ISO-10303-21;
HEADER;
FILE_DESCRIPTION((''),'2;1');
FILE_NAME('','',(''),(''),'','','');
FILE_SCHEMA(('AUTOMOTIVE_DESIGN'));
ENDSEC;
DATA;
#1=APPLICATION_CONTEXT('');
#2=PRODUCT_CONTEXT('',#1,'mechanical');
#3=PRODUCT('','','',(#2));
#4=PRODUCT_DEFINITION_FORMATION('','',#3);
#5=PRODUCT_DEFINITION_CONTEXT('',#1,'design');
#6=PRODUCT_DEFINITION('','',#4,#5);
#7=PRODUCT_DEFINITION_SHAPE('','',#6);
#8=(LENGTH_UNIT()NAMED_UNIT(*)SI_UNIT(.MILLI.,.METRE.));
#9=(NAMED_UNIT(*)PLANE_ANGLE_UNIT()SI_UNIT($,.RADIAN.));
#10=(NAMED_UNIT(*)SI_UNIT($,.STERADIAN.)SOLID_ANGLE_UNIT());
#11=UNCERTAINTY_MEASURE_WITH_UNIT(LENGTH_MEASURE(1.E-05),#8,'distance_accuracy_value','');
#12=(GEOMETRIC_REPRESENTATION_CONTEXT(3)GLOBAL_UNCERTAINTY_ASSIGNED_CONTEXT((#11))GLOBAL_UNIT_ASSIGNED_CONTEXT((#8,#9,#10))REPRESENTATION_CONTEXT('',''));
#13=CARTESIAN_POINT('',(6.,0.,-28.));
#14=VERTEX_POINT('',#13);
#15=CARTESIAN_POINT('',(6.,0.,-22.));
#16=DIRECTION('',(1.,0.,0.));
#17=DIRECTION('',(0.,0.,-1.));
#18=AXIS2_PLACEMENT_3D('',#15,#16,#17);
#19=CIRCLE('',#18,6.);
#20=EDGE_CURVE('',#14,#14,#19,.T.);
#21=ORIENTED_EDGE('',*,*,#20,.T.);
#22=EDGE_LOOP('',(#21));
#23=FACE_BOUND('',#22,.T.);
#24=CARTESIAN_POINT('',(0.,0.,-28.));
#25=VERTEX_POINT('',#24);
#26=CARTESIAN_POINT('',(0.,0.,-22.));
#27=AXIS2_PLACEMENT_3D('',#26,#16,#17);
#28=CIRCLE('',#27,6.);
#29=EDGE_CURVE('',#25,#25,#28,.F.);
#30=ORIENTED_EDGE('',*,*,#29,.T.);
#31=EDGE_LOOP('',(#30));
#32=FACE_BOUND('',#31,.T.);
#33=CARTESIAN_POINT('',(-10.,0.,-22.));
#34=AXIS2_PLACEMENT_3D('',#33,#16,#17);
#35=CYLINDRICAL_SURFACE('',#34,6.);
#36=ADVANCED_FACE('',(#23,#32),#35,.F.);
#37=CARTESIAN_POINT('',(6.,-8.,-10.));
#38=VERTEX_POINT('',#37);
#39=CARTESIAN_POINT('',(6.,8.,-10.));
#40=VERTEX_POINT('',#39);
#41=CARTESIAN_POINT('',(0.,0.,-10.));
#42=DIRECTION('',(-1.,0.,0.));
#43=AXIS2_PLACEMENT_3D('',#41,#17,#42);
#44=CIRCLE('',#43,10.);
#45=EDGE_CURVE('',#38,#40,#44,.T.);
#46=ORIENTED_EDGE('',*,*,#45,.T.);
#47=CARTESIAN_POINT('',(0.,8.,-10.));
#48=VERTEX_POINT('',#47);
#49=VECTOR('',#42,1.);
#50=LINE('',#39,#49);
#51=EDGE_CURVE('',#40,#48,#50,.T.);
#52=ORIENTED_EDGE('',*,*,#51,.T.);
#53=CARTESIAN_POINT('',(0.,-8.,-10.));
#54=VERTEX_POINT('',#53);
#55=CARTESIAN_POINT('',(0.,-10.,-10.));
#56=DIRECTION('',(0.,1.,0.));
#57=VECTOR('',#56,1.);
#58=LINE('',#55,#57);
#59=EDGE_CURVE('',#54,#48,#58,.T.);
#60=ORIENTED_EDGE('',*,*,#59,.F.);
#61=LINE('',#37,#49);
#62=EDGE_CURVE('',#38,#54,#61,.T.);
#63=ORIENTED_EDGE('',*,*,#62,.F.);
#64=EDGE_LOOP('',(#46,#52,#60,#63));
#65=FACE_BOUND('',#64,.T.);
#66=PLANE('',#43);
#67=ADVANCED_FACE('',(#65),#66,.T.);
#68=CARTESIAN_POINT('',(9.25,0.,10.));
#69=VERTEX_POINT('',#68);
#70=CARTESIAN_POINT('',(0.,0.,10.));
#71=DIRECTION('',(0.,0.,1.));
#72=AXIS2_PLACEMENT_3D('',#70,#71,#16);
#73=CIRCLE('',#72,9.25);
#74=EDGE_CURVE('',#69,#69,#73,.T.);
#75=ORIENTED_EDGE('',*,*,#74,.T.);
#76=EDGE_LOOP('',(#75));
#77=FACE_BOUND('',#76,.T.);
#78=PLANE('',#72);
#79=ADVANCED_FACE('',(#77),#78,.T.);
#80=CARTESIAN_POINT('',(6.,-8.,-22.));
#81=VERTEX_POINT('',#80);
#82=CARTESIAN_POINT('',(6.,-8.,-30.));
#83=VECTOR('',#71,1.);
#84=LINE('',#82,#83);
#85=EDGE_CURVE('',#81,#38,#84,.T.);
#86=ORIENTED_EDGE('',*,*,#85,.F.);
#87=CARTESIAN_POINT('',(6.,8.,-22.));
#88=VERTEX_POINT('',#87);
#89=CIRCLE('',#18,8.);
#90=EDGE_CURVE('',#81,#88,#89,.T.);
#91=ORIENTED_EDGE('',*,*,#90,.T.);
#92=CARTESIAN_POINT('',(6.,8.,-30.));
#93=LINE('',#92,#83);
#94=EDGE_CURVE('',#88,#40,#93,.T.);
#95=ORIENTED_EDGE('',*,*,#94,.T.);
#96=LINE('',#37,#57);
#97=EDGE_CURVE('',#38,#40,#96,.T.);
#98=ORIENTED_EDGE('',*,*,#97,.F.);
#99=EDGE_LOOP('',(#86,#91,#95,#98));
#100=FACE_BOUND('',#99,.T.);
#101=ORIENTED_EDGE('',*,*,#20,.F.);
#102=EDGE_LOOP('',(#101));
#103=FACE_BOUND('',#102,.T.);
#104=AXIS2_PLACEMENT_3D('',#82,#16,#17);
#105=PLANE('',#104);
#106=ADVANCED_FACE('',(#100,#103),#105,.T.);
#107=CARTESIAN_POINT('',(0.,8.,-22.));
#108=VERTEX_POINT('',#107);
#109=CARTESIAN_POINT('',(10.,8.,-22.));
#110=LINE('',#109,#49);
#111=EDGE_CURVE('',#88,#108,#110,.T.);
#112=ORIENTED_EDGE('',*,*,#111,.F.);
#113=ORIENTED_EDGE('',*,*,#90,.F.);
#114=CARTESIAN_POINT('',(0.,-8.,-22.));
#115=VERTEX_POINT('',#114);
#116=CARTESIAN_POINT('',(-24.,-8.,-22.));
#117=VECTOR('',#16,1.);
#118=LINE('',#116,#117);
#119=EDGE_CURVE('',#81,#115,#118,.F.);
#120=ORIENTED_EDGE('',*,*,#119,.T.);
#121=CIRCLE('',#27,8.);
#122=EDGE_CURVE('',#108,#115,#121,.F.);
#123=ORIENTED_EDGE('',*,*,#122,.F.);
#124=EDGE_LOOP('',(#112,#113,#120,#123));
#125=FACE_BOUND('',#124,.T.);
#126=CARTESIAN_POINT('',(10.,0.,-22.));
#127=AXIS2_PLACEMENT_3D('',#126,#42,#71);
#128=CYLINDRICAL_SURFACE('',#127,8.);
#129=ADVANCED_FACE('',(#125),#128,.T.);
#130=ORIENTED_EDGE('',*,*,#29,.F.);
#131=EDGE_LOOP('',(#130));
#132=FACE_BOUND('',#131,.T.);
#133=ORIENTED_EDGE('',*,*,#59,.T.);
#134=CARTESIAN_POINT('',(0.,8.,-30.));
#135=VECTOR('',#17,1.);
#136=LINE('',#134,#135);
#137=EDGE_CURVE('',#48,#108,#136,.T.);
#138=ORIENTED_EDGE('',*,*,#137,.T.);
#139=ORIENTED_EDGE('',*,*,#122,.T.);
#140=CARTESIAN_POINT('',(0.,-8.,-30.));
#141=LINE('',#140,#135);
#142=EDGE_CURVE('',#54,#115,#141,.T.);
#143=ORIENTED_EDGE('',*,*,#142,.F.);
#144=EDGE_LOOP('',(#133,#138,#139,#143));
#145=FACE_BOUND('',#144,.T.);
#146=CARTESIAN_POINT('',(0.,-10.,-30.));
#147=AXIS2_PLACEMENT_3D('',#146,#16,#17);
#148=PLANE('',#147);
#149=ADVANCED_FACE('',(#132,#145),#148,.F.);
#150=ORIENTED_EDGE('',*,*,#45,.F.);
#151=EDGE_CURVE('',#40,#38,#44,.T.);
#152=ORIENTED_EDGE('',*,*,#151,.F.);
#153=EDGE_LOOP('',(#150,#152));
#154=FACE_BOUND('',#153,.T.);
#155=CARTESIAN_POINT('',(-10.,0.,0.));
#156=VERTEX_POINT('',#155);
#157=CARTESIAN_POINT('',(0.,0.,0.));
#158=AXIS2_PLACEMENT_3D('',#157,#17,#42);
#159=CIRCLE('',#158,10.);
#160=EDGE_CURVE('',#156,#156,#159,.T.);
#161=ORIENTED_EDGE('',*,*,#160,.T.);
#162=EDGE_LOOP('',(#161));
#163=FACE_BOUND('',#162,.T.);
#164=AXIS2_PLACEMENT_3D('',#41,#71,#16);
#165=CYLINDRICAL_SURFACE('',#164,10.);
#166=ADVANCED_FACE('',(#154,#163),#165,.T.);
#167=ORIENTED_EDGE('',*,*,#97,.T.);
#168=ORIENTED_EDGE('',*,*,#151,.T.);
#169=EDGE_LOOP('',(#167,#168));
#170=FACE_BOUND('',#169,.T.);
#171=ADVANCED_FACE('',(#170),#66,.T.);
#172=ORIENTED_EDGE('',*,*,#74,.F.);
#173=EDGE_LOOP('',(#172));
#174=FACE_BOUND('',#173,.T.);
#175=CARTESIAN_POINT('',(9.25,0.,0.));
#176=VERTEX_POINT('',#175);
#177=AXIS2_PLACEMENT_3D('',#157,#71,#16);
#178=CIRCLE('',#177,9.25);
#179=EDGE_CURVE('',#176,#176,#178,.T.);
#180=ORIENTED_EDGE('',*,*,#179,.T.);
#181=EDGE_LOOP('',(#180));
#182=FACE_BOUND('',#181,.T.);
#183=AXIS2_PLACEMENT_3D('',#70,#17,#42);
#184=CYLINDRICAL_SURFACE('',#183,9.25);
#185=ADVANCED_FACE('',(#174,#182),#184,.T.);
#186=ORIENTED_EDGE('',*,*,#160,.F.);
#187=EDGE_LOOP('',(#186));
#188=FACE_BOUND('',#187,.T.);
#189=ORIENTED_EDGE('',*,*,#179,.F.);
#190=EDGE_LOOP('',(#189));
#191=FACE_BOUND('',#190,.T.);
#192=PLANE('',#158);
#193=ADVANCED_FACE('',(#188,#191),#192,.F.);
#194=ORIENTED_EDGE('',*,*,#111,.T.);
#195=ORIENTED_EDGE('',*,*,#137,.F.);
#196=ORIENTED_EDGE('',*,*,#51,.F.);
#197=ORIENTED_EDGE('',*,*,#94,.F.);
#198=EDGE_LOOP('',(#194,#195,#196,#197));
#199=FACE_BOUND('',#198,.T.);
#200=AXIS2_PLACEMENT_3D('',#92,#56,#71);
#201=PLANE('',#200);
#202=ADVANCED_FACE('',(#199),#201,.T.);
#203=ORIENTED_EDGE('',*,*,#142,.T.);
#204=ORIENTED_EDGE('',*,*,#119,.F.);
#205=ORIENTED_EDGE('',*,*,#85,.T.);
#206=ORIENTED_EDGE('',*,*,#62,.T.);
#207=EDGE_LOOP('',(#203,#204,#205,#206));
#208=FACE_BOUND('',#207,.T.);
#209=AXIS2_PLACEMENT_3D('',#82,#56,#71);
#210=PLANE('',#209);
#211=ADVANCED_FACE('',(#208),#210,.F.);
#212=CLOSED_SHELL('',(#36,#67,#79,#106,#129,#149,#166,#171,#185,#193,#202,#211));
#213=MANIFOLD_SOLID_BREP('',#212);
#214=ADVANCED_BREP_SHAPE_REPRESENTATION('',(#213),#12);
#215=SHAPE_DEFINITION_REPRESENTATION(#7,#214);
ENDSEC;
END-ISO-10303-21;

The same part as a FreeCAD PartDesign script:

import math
import FreeCAD as App
import Part
import Sketcher
from FreeCAD import Vector


def add_polygon(sketch, points):
    """Adds a closed chain of lines whose ends are joined by coincident constraints."""
    first, n = sketch.GeometryCount, len(points)
    for a, b in zip(points, points[1:] + points[:1]):
        sketch.addGeometry(Part.LineSegment(App.Vector(*a, 0), App.Vector(*b, 0)), False)
    for i in range(n):
        sketch.addConstraint(Sketcher.Constraint("Coincident", first + i, 2, first + (i + 1) % n, 1))

doc = App.newDocument("Part")
body = doc.addObject("PartDesign::Body", "Body")

# Sketch on XY plane
sketch1 = doc.addObject("Sketcher::SketchObject", "Sketch")
body.addObject(sketch1)
sketch1.AttachmentSupport = (doc.XY_Plane, [""])
sketch1.MapMode = "FlatFace"
sketch1.addGeometry(Part.Circle(Vector(0, 0, 0), Vector(0, 0, 1), 9), False)
sketch1.addConstraint([
    Sketcher.Constraint("Coincident", 0, 3, -1, 1),
    Sketcher.Constraint("Diameter", 0, 18.5),
])
pad1 = doc.addObject("PartDesign::Pad", "Pad")
body.addObject(pad1)
pad1.Profile = sketch1
pad1.Length = 10

# Sketch on XY plane
sketch2 = doc.addObject("Sketcher::SketchObject", "Sketch001")
body.addObject(sketch2)
sketch2.AttachmentSupport = (doc.XY_Plane, [""])
sketch2.MapMode = "FlatFace"
sketch2.addGeometry(Part.Circle(Vector(0, 0, 0), Vector(0, 0, 1), 10), False)
sketch2.addConstraint([
    Sketcher.Constraint("Coincident", 0, 3, -1, 1),
    Sketcher.Constraint("Diameter", 0, 20.0),
])
pad2 = doc.addObject("PartDesign::Pad", "Pad001")
body.addObject(pad2)
pad2.Profile = sketch2
pad2.Length = 10
pad2.Reversed = True

# Sketch on XY plane
sketch3 = doc.addObject("Sketcher::SketchObject", "Sketch002")
body.addObject(sketch3)
sketch3.AttachmentSupport = (doc.XY_Plane, [""])
sketch3.MapMode = "FlatFace"
sketch3.AttachmentOffset = App.Placement(Vector(0, 0, -10), App.Rotation())
add_polygon(sketch3, [(6, 8), (6, -8), (-6, -8), (-6, 8)])  # lines 0-3
sketch3.addConstraint([
    Sketcher.Constraint("Vertical", 0),
    Sketcher.Constraint("Horizontal", 1),
    Sketcher.Constraint("Vertical", 2),
    Sketcher.Constraint("Horizontal", 3),
    Sketcher.Constraint("Symmetric", 0, 2, 2, 2, -1, 1),
    Sketcher.Constraint("DistanceX", 1, 2, 1, 1, 12.0),
    Sketcher.Constraint("DistanceY", 0, 2, 0, 1, 16.0),
])
pad3 = doc.addObject("PartDesign::Pad", "Pad002")
body.addObject(pad3)
pad3.Profile = sketch3
pad3.Length = 20
pad3.Reversed = True

# Sketch on YZ plane
sketch4 = doc.addObject("Sketcher::SketchObject", "Sketch003")
body.addObject(sketch4)
sketch4.AttachmentSupport = (doc.YZ_Plane, [""])
sketch4.MapMode = "FlatFace"
sketch4.AttachmentOffset = App.Placement(Vector(0, 0, 6), App.Rotation())
sketch4.addGeometry([
    Part.LineSegment(Vector(8, -30, 0), Vector(8, -22, 0)),  # 0
    Part.ArcOfCircle(Part.Circle(Vector(0, -22, 0), Vector(0, 0, 1), 8), math.radians(-90), math.radians(0)),  # 1
    Part.LineSegment(Vector(0, -30, 0), Vector(8, -30, 0)),  # 2
    Part.LineSegment(Vector(-8, -30, 0), Vector(0, -30, 0)),  # 3
    Part.ArcOfCircle(Part.Circle(Vector(0, -22, 0), Vector(0, 0, 1), 8), math.radians(-180), math.radians(-90)),  # 4
    Part.LineSegment(Vector(-8, -22, 0), Vector(-8, -30, 0)),  # 5
], False)
sketch4.addConstraint([
    Sketcher.Constraint("Tangent", 0, 2, 1, 2),
    Sketcher.Constraint("Tangent", 1, 1, 2, 1),
    Sketcher.Constraint("Coincident", 2, 2, 0, 1),
    Sketcher.Constraint("Tangent", 3, 2, 4, 2),
    Sketcher.Constraint("Tangent", 4, 1, 5, 1),
    Sketcher.Constraint("Coincident", 5, 2, 3, 1),
    Sketcher.Constraint("Vertical", 0),
    Sketcher.Constraint("Horizontal", 2),
    Sketcher.Constraint("Horizontal", 3),
    Sketcher.Constraint("Vertical", 5),
    Sketcher.Constraint("Coincident", 4, 3, 1, 3),
    Sketcher.Constraint("Equal", 1, 4),
    Sketcher.Constraint("PointOnObject", 1, 3, -2),
    Sketcher.Constraint("Radius", 1, 8.0),
    Sketcher.Constraint("DistanceY", 1, 3, -1, 1, 22.0),
])
pocket1 = doc.addObject("PartDesign::Pocket", "Pocket")
body.addObject(pocket1)
pocket1.Profile = sketch4
pocket1.Type = "ThroughAll"
pocket1.Midplane = True

# Sketch on YZ plane
sketch5 = doc.addObject("Sketcher::SketchObject", "Sketch004")
body.addObject(sketch5)
sketch5.AttachmentSupport = (doc.YZ_Plane, [""])
sketch5.MapMode = "FlatFace"
sketch5.AttachmentOffset = App.Placement(Vector(0, 0, 6), App.Rotation())
sketch5.addGeometry(Part.Circle(Vector(0, -22, 0), Vector(0, 0, 1), 6), False)
sketch5.addConstraint([
    Sketcher.Constraint("PointOnObject", 0, 3, -2),
    Sketcher.Constraint("Diameter", 0, 12.0),
    Sketcher.Constraint("DistanceY", 0, 3, -1, 1, 22.0),
])
pocket2 = doc.addObject("PartDesign::Pocket", "Pocket001")
body.addObject(pocket2)
pocket2.Profile = sketch5
pocket2.Type = "ThroughAll"

# Sketch on XZ plane
sketch6 = doc.addObject("Sketcher::SketchObject", "Sketch005")
body.addObject(sketch6)
sketch6.AttachmentSupport = (doc.XZ_Plane, [""])
sketch6.MapMode = "FlatFace"
sketch6.AttachmentOffset = App.Placement(Vector(0, 0, -8), App.Rotation())
add_polygon(sketch6, [(-6, -30), (-6, -10), (0, -10), (0, -30)])  # lines 0-3
sketch6.addConstraint([
    Sketcher.Constraint("Vertical", 0),
    Sketcher.Constraint("Horizontal", 1),
    Sketcher.Constraint("Vertical", 2),
    Sketcher.Constraint("Horizontal", 3),
    Sketcher.Constraint("PointOnObject", 1, 2, -2),
    Sketcher.Constraint("DistanceX", 1, 1, 1, 2, 6.0),
    Sketcher.Constraint("DistanceY", 0, 1, 0, 2, 20.0),
    Sketcher.Constraint("DistanceY", 0, 2, -1, 1, 10.0),
])
pocket3 = doc.addObject("PartDesign::Pocket", "Pocket002")
body.addObject(pocket3)
pocket3.Profile = sketch6
pocket3.Type = "ThroughAll"
pocket3.Reversed = True

doc.recompute()
